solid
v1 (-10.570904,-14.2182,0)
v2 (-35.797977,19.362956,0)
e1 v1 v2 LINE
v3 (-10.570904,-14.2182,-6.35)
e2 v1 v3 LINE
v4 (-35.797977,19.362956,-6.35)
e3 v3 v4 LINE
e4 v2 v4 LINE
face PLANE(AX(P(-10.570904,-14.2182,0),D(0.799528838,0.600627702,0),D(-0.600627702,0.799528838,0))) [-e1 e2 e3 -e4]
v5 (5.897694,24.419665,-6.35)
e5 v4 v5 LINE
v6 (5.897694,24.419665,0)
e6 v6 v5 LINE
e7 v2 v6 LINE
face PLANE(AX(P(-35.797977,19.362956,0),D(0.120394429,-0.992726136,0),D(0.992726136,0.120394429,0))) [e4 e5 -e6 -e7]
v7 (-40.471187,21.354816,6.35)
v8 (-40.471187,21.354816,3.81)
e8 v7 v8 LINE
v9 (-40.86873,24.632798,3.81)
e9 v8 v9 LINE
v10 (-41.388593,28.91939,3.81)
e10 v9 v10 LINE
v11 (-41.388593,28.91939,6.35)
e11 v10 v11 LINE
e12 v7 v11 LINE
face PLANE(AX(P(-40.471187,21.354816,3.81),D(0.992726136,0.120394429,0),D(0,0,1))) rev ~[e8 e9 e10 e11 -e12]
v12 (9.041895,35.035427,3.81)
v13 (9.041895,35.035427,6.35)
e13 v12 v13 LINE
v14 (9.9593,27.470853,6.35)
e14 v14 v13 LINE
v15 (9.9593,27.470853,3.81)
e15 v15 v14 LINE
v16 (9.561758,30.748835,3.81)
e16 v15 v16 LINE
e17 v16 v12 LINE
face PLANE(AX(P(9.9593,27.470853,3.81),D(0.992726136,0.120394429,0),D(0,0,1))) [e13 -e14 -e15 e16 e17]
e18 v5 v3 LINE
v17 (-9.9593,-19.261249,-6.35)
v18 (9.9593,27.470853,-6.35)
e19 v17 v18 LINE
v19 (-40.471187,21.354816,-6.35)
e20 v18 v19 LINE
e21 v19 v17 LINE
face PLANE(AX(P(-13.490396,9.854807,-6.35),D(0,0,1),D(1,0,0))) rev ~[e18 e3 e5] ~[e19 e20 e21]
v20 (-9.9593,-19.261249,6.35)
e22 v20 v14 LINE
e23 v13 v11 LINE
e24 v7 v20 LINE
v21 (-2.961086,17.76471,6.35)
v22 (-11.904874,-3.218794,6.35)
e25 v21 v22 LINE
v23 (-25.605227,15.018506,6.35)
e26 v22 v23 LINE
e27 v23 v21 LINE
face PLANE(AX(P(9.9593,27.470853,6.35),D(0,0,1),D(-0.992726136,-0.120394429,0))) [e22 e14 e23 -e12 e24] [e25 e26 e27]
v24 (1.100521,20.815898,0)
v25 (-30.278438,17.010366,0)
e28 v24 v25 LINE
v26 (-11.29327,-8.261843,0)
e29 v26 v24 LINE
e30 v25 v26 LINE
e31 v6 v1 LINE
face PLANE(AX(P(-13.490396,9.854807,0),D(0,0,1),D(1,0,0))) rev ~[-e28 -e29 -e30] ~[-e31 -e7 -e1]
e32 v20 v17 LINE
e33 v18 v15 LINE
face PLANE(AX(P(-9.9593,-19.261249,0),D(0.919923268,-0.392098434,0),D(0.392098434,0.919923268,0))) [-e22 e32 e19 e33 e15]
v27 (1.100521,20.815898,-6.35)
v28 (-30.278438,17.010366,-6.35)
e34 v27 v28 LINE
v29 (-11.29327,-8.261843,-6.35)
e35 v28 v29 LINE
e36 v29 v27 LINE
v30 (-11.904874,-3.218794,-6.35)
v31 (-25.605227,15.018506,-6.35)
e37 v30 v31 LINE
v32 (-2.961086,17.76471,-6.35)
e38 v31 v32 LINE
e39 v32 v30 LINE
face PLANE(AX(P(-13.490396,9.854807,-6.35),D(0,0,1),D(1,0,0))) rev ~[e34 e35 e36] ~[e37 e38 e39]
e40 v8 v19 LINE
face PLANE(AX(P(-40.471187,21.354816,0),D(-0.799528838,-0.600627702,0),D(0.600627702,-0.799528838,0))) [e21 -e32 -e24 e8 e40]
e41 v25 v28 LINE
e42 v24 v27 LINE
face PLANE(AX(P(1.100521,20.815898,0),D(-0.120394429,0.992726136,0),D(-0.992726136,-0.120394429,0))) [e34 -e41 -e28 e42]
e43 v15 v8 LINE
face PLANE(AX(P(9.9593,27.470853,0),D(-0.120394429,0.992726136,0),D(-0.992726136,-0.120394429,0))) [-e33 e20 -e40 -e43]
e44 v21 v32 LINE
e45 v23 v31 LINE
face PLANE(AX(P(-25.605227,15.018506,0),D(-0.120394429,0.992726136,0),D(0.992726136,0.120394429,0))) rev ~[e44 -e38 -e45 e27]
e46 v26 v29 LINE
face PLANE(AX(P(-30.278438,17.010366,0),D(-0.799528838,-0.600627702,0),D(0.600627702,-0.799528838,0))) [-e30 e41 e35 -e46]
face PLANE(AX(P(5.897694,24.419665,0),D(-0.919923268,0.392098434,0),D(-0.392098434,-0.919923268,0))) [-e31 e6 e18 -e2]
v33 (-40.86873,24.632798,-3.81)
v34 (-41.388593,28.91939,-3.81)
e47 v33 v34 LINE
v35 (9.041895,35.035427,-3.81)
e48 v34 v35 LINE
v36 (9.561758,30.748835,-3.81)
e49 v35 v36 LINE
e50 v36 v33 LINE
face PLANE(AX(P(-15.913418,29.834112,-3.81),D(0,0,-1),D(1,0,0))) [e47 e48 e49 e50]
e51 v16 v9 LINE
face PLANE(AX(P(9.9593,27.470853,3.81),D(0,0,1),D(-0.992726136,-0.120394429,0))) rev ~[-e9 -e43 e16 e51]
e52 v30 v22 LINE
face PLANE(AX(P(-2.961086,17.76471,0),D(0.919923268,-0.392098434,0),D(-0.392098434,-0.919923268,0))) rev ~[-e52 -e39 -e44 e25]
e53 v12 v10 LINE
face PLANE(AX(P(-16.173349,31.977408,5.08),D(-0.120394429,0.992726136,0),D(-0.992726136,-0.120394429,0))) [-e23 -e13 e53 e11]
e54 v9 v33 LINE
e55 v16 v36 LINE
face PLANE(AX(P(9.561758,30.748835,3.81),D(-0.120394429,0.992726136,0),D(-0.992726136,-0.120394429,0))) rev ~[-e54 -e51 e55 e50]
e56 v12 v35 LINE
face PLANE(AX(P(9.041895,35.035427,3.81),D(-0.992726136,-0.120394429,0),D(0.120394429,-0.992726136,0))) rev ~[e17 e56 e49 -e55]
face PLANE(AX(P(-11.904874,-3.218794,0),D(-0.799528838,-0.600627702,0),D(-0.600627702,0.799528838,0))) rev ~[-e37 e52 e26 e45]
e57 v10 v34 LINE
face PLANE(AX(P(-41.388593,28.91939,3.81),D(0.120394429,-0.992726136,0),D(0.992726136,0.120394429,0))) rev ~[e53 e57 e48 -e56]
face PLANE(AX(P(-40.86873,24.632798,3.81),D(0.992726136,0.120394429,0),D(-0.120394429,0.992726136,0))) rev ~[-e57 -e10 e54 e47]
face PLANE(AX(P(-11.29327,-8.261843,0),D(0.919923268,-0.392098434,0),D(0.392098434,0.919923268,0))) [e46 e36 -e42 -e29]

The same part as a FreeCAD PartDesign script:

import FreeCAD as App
import Part
import Sketcher
Q = App.Units.Quantity


def add_polygon(sketch, points):
    """Adds a closed chain of lines whose ends are joined by coincident constraints."""
    first, n = sketch.GeometryCount, len(points)
    for a, b in zip(points, points[1:] + points[:1]):
        sketch.addGeometry(Part.LineSegment(App.Vector(*a, 0), App.Vector(*b, 0)), False)
    for i in range(n):
        sketch.addConstraint(Sketcher.Constraint("Coincident", first + i, 2, first + (i + 1) % n, 1))

doc = App.newDocument("Part")
params = doc.addObject("Spreadsheet::Sheet", "Params")
for row, (alias, value) in enumerate([
    ("sketch1_length", "2 in"),
    ("pad1_length", "0.25 in"),
    ("sketch2_length", "2 in"),
    ("pad2_length", "0.25 in"),
    ("sketch3_width", "2 in"),
    ("sketch3_height", "0.1 in"),
    ("pad3_length", "0.3 in"),
    ("sketch4_length", "2 in"),
    ("sketch4_length2", "2 in"),
    ("sketch4_length3", "0.17 in"),
    ("sketch4_length4", "0.17 in"),
    ("pad4_length", "0.3 in"),
], start=1):
    params.set(f"A{row}", alias)
    params.set(f"B{row}", "=" + value)
    params.setAlias(f"B{row}", alias)

body = doc.addObject("PartDesign::Body", "Body")

# Sketch on XY plane
sketch1 = body.newObject("Sketcher::SketchObject", "Sketch")
sketch1.AttachmentSupport = (doc.getObject("XY_Plane"), [""])
sketch1.MapMode = "FlatFace"
add_polygon(sketch1, [(-10, -19), (10, 27), (-40, 21)])  # lines 0-2
add_polygon(sketch1, [(-3, 18), (-12, -3), (-26, 15)])  # lines 3-5
sketch1.addConstraint(Sketcher.Constraint("Parallel", 0, 3))
sketch1.addConstraint(Sketcher.Constraint("Parallel", 2, 4))
sketch1.addConstraint(Sketcher.Constraint("Parallel", 1, 5))
sketch1.addConstraint(Sketcher.Constraint("Equal", 0, 1))
sketch1.addConstraint(Sketcher.Constraint("Equal", 1, 2))
sketch1.addConstraint(Sketcher.Constraint("Distance", 0, Q("2 in")))
sketch1.addConstraint(Sketcher.Constraint("DistanceX", -1, 1, 0, 2, Q("9.9593 mm")))
sketch1.addConstraint(Sketcher.Constraint("DistanceX", 2, 2, -1, 1, Q("9.9593 mm")))
sketch1.addConstraint(Sketcher.Constraint("DistanceY", 3, 2, 4, 2, Q("18.2373 mm")))
sketch1.addConstraint(Sketcher.Constraint("DistanceX", 1, 2, 5, 2, Q("37.510102 mm")))
sketch1.addConstraint(Sketcher.Constraint("DistanceY", 2, 2, -1, 1, Q("19.261249 mm")))
sketch1.addConstraint(Sketcher.Constraint("DistanceY", -1, 1, 5, 2, Q("17.76471 mm")))
sketch1.setExpression("Constraints[11]", "Params.sketch1_length")
pad1 = body.newObject("PartDesign::Pad", "Pad")
pad1.Profile = sketch1
pad1.setExpression("Length", "Params.pad1_length")

# Sketch on XY plane
sketch2 = body.newObject("Sketcher::SketchObject", "Sketch001")
sketch2.AttachmentSupport = (doc.getObject("XY_Plane"), [""])
sketch2.MapMode = "FlatFace"
add_polygon(sketch2, [(-10, -19), (10, 27), (-40, 21)])  # lines 0-2
add_polygon(sketch2, [(6, 24), (-11, -14), (-36, 19)])  # lines 3-5
add_polygon(sketch2, [(1, 21), (-30, 17), (-11, -8)])  # lines 6-8
add_polygon(sketch2, [(-3, 18), (-12, -3), (-26, 15)])  # lines 9-11
sketch2.addConstraint(Sketcher.Constraint("Parallel", 0, 3))
sketch2.addConstraint(Sketcher.Constraint("Parallel", 2, 4))
sketch2.addConstraint(Sketcher.Constraint("Parallel", 1, 5))
sketch2.addConstraint(Sketcher.Constraint("Parallel", 5, 6))
sketch2.addConstraint(Sketcher.Constraint("Parallel", 4, 7))
sketch2.addConstraint(Sketcher.Constraint("Parallel", 3, 8))
sketch2.addConstraint(Sketcher.Constraint("Parallel", 8, 9))
sketch2.addConstraint(Sketcher.Constraint("Parallel", 7, 10))
sketch2.addConstraint(Sketcher.Constraint("Parallel", 6, 11))
sketch2.addConstraint(Sketcher.Constraint("Equal", 0, 1))
sketch2.addConstraint(Sketcher.Constraint("Equal", 1, 2))
sketch2.addConstraint(Sketcher.Constraint("Distance", 0, Q("2 in")))
sketch2.addConstraint(Sketcher.Constraint("DistanceX", -1, 1, 0, 2, Q("9.9593 mm")))
sketch2.addConstraint(Sketcher.Constraint("DistanceX", 2, 2, -1, 1, Q("9.9593 mm")))
sketch2.addConstraint(Sketcher.Constraint("DistanceY", 3, 2, -1, 1, Q("14.2182 mm")))
sketch2.addConstraint(Sketcher.Constraint("DistanceY", -1, 1, 8, 2, Q("20.815898 mm")))
sketch2.addConstraint(Sketcher.Constraint("DistanceY", 6, 2, 5, 2, Q("7.409299 mm")))
sketch2.addConstraint(Sketcher.Constraint("DistanceY", 7, 2, 4, 2, Q("27.624799 mm")))
sketch2.addConstraint(Sketcher.Constraint("DistanceY", 9, 2, 10, 2, Q("18.2373 mm")))
sketch2.addConstraint(Sketcher.Constraint("DistanceY", 2, 2, -1, 1, Q("19.261249 mm")))
sketch2.addConstraint(Sketcher.Constraint("DistanceX", 7, 2, -1, 1, Q("11.29327 mm")))
sketch2.addConstraint(Sketcher.Constraint("DistanceY", -1, 1, 11, 2, Q("17.76471 mm")))
sketch2.addConstraint(Sketcher.Constraint("DistanceX", 1, 2, 4, 2, Q("4.67321 mm")))
sketch2.addConstraint(Sketcher.Constraint("DistanceX", 9, 2, 3, 2, Q("1.33397 mm")))
sketch2.setExpression("Constraints[23]", "Params.sketch2_length")
pad2 = body.newObject("PartDesign::Pad", "Pad001")
pad2.Profile = sketch2
pad2.setExpression("Length", "Params.pad2_length")
pad2.Reversed = True

# Sketch on an angled plane
sketch3 = body.newObject("Sketcher::SketchObject", "Sketch002")
sketch3.Placement = App.Placement(App.Vector(-3.138922, 25.882346, 0), App.Rotation(App.Vector(-0.992726136, -0.120394429, 0), App.Vector(0, 0, 1), App.Vector(-0.120394429, 0.992726136, 0), "ZXY"))
add_polygon(sketch3, [(-13.2, 6.3), (-13.2, 3.8), (37.6, 3.8), (37.6, 6.3)])  # lines 0-3
sketch3.addConstraint(Sketcher.Constraint("Vertical", 0))
sketch3.addConstraint(Sketcher.Constraint("Horizontal", 1))
sketch3.addConstraint(Sketcher.Constraint("Vertical", 2))
sketch3.addConstraint(Sketcher.Constraint("Horizontal", 3))
sketch3.addConstraint(Sketcher.Constraint("DistanceX", 1, 1, 1, 2, Q("2 in")))
sketch3.addConstraint(Sketcher.Constraint("DistanceY", 0, 2, 0, 1, Q("0.1 in")))
sketch3.addConstraint(Sketcher.Constraint("DistanceY", -1, 1, 0, 2, Q("0.15 in")))
sketch3.addConstraint(Sketcher.Constraint("DistanceX", 0, 2, -1, 1, Q("13.194195 mm")))
sketch3.setExpression("Constraints[8]", "Params.sketch3_width")
sketch3.setExpression("Constraints[9]", "Params.sketch3_height")
pad3 = body.newObject("PartDesign::Pad", "Pad002")
pad3.Profile = sketch3
pad3.setExpression("Length", "Params.pad3_length")

# Sketch on XY plane
sketch4 = body.newObject("Sketcher::SketchObject", "Sketch003")
sketch4.AttachmentSupport = (doc.getObject("XY_Plane"), [""])
sketch4.MapMode = "FlatFace"
sketch4.AttachmentOffset = App.Placement(App.Vector(0, 0, 0.15 * 25.4), App.Rotation())
add_polygon(sketch4, [(9.561758, 30.748835), (-40.86873, 24.632798), (-41.388593, 28.91939), (9.041895, 35.035427)])  # lines 0-3
sketch4.addConstraint(Sketcher.Constraint("Distance", 0, Q("2 in")))
sketch4.addConstraint(Sketcher.Constraint("Distance", 2, Q("2 in")))
sketch4.addConstraint(Sketcher.Constraint("Distance", 1, Q("0.17 in")))
sketch4.addConstraint(Sketcher.Constraint("Distance", 3, Q("0.17 in")))
sketch4.addConstraint(Sketcher.Constraint("DistanceY", -1, 1, 0, 2, Q("24.632798 mm")))
sketch4.addConstraint(Sketcher.Constraint("DistanceX", 0, 2, -1, 1, Q("40.86873 mm")))
sketch4.addConstraint(Sketcher.Constraint("DistanceY", -1, 1, 1, 2, Q("28.91939 mm")))
sketch4.addConstraint(Sketcher.Constraint("DistanceY", 0, 2, 2, 2, Q("10.402628 mm")))
sketch4.setExpression("Constraints[4]", "Params.sketch4_length")
sketch4.setExpression("Constraints[5]", "Params.sketch4_length2")
sketch4.setExpression("Constraints[6]", "Params.sketch4_length3")
sketch4.setExpression("Constraints[7]", "Params.sketch4_length4")
pad4 = body.newObject("PartDesign::Pad", "Pad003")
pad4.Profile = sketch4
pad4.setExpression("Length", "Params.pad4_length")
pad4.Reversed = True

doc.recompute()
